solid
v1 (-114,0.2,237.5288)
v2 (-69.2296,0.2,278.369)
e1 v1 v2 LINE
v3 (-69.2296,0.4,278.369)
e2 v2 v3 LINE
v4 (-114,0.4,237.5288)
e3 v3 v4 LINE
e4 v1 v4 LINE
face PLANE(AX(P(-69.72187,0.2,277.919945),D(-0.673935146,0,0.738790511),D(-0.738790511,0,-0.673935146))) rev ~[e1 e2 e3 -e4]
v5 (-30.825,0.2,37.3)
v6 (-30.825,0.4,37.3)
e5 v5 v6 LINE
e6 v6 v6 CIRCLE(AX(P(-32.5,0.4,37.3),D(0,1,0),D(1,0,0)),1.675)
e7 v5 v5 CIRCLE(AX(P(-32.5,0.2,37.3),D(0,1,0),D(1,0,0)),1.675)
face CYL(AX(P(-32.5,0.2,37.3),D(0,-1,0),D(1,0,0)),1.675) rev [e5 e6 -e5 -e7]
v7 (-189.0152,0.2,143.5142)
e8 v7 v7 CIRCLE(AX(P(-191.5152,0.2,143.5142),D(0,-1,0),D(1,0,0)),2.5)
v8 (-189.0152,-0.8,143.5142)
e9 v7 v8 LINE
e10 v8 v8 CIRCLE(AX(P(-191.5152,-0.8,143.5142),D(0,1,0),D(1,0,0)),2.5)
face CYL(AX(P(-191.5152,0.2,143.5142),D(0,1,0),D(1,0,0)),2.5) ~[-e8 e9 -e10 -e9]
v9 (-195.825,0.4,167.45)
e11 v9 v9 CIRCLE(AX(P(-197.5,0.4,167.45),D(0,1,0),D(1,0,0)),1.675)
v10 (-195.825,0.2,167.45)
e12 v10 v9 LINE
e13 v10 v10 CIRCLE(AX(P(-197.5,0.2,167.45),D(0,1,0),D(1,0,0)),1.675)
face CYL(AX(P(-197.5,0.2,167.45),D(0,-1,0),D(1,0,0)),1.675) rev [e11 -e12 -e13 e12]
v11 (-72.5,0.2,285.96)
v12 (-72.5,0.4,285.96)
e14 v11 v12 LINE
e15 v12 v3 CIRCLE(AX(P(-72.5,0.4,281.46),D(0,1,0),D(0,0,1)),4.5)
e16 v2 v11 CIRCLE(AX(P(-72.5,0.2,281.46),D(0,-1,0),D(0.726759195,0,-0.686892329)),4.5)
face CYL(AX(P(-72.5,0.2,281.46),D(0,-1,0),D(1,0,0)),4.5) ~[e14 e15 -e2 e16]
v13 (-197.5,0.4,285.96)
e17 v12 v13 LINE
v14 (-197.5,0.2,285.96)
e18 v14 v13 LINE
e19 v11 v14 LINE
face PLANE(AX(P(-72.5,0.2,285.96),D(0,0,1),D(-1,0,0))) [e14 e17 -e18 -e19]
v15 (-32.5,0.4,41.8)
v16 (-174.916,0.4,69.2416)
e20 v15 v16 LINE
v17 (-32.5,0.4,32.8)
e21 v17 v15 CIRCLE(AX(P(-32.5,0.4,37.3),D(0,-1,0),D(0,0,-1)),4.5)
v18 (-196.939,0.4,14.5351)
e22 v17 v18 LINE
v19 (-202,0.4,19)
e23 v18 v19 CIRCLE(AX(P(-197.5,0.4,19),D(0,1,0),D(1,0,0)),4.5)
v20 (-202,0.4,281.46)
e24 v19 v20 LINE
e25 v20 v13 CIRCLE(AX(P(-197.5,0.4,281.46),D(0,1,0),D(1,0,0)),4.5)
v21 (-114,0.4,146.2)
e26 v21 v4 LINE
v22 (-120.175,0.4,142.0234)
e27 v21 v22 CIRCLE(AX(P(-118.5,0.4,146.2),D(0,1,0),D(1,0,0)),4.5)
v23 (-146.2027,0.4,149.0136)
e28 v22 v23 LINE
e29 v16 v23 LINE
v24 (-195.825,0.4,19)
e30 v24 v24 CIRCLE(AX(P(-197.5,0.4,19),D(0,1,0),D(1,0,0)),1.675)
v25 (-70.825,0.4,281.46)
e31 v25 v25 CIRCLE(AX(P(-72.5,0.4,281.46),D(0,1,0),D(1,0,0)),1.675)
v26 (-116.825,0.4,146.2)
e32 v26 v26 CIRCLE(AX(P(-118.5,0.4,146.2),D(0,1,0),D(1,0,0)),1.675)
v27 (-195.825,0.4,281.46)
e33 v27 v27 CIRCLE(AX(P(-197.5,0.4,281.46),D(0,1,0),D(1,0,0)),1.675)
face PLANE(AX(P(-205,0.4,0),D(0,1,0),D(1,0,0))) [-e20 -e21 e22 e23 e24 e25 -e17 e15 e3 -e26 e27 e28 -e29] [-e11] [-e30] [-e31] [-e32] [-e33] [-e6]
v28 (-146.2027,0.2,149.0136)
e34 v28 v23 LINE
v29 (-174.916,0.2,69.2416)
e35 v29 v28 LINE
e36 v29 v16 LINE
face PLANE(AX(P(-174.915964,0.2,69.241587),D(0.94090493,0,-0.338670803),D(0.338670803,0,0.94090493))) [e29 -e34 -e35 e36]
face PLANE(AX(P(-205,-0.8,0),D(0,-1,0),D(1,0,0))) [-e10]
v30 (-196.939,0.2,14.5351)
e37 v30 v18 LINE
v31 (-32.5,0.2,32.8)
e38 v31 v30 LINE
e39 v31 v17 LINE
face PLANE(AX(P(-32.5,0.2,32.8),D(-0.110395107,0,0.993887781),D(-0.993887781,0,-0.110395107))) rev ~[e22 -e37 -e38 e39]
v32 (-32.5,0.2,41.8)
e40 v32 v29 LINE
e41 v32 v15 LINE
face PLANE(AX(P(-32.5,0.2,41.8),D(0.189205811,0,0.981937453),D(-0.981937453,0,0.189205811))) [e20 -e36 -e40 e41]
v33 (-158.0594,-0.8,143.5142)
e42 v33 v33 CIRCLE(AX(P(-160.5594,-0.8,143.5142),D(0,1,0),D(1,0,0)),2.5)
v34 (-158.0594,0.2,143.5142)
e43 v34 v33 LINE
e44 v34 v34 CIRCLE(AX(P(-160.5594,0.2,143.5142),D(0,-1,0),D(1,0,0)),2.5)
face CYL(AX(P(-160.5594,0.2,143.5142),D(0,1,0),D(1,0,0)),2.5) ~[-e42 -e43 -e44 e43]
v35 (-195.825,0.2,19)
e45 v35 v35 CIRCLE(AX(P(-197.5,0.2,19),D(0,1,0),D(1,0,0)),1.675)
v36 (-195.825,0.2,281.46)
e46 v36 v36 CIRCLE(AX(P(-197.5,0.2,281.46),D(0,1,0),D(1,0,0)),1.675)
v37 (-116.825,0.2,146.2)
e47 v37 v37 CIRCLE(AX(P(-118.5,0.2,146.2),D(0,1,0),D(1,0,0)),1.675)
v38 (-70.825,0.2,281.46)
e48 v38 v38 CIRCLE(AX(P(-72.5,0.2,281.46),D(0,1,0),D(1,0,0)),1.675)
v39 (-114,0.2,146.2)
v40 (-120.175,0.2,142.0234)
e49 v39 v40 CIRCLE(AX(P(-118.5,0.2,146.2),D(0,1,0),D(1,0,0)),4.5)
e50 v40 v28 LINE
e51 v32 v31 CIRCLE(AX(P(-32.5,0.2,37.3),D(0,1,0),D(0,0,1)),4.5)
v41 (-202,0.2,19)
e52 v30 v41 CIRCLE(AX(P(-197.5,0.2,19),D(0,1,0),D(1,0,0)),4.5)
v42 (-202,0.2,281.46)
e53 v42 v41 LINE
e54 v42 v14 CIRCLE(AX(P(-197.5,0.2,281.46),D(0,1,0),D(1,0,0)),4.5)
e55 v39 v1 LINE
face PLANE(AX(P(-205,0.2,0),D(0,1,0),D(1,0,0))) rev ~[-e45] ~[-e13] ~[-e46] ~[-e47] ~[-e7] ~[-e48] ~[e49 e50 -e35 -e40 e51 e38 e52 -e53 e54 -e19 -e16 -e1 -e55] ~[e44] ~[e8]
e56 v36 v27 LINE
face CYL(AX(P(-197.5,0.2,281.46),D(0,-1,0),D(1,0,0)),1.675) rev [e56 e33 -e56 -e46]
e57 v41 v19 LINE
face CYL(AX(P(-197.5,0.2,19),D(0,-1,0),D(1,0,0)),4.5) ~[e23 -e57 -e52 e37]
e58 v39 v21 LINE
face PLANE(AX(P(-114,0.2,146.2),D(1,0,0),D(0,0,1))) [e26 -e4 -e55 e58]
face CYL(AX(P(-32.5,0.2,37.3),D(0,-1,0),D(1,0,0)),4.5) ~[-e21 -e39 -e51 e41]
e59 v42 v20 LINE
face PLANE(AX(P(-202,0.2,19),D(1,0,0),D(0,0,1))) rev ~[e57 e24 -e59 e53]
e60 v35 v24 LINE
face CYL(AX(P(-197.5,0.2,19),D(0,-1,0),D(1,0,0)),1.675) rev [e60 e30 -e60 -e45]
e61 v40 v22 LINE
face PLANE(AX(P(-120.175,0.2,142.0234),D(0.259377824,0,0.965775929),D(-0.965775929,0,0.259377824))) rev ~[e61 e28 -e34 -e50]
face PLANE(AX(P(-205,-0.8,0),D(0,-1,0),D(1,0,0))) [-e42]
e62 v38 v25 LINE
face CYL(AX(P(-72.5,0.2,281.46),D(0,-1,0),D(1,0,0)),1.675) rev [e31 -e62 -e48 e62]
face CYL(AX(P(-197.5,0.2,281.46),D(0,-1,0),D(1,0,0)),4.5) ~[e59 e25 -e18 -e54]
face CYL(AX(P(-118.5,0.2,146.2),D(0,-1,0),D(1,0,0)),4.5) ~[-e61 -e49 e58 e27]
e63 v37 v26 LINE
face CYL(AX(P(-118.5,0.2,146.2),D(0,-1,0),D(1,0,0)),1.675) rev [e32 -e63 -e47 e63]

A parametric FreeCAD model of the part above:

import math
import FreeCAD as App
import Part
import Sketcher

V = App.Vector

doc = App.newDocument("Part")
params = doc.addObject("Spreadsheet::Sheet", "Params")
for row, (alias, value) in enumerate([
    ("sketch1_radius", "4.5 mm"),
    ("sketch1_diameter", "3.35 mm"),
    ("sketch1_width", "125 mm"),
    ("sketch1_height", "262.46 mm"),
    ("sketch1_length", "26.95 mm"),
    ("pad1_length", "0.2 mm"),
    ("sketch2_diameter", "5 mm"),
    ("pad2_length", "1 mm"),
], start=1):
    params.set(f"A{row}", alias)
    params.set(f"B{row}", "=" + value)
    params.setAlias(f"B{row}", alias)

body = doc.addObject("PartDesign::Body", "Body")

# Sketch on XZ plane
sketch1 = body.newObject("Sketcher::SketchObject", "Sketch")
sketch1.AttachmentSupport = (doc.getObject("XZ_Plane"), [""])
sketch1.MapMode = "FlatFace"
sketch1.AttachmentOffset = App.Placement(V(0, 0, -0.2), App.Rotation())
sketch1.addGeometry(Part.ArcOfCircle(Part.Circle(V(-32.5, 37.3, 0), V(0, 0, 1), 4.5), math.radians(-90), math.radians(90)), False)
sketch1.addGeometry(Part.LineSegment(V(-32.5, 32.8, 0), V(-196.9, 14.5, 0)), False)
sketch1.addGeometry(Part.ArcOfCircle(Part.Circle(V(-197.5, 19, 0), V(0, 0, 1), 4.5), math.radians(180), math.radians(277)), False)
sketch1.addGeometry(Part.LineSegment(V(-202, 19, 0), V(-202, 281.5, 0)), False)
sketch1.addGeometry(Part.ArcOfCircle(Part.Circle(V(-197.5, 281.5, 0), V(0, 0, 1), 4.5), math.radians(90), math.radians(180)), False)
sketch1.addGeometry(Part.LineSegment(V(-197.5, 286, 0), V(-72.5, 286, 0)), False)
sketch1.addGeometry(Part.ArcOfCircle(Part.Circle(V(-72.5, 281.5, 0), V(0, 0, 1), 4.5), math.radians(-43), math.radians(90)), False)
sketch1.addGeometry(Part.LineSegment(V(-69.2, 278.4, 0), V(-114, 237.5, 0)), False)
sketch1.addGeometry(Part.LineSegment(V(-114, 237.5, 0), V(-114, 146.2, 0)), False)
sketch1.addGeometry(Part.ArcOfCircle(Part.Circle(V(-118.5, 146.2, 0), V(0, 0, 1), 4.5), math.radians(-112), math.radians(0)), False)
sketch1.addGeometry(Part.LineSegment(V(-120.2, 142, 0), V(-146.2, 149, 0)), False)
sketch1.addGeometry(Part.LineSegment(V(-146.2, 149, 0), V(-174.9, 69.2, 0)), False)
sketch1.addGeometry(Part.LineSegment(V(-174.9, 69.2, 0), V(-32.5, 41.8, 0)), False)
sketch1.addGeometry(Part.Circle(V(-32.5, 37.3, 0), V(0, 0, 1), 1.7), False)
sketch1.addGeometry(Part.Circle(V(-197.5, 19, 0), V(0, 0, 1), 1.7), False)
sketch1.addGeometry(Part.Circle(V(-197.5, 167.4, 0), V(0, 0, 1), 1.7), False)
sketch1.addGeometry(Part.Circle(V(-118.5, 146.2, 0), V(0, 0, 1), 1.7), False)
sketch1.addGeometry(Part.Circle(V(-197.5, 281.5, 0), V(0, 0, 1), 1.7), False)
sketch1.addGeometry(Part.Circle(V(-72.5, 281.5, 0), V(0, 0, 1), 1.7), False)
sketch1.addConstraint(Sketcher.Constraint("Coincident", 0, 1, 1, 1))
sketch1.addConstraint(Sketcher.Constraint("Coincident", 1, 2, 2, 2))
sketch1.addConstraint(Sketcher.Constraint("Tangent", 2, 1, 3, 1))
sketch1.addConstraint(Sketcher.Constraint("Tangent", 3, 2, 4, 2))
sketch1.addConstraint(Sketcher.Constraint("Tangent", 4, 1, 5, 1))
sketch1.addConstraint(Sketcher.Constraint("Tangent", 5, 2, 6, 2))
sketch1.addConstraint(Sketcher.Constraint("Coincident", 6, 1, 7, 1))
sketch1.addConstraint(Sketcher.Constraint("Coincident", 7, 2, 8, 1))
sketch1.addConstraint(Sketcher.Constraint("Tangent", 8, 2, 9, 2))
sketch1.addConstraint(Sketcher.Constraint("Coincident", 9, 1, 10, 1))
sketch1.addConstraint(Sketcher.Constraint("Coincident", 10, 2, 11, 1))
sketch1.addConstraint(Sketcher.Constraint("Coincident", 11, 2, 12, 1))
sketch1.addConstraint(Sketcher.Constraint("Coincident", 12, 2, 0, 2))
sketch1.addConstraint(Sketcher.Constraint("Vertical", 3))
sketch1.addConstraint(Sketcher.Constraint("Horizontal", 5))
sketch1.addConstraint(Sketcher.Constraint("Vertical", 8))
sketch1.addConstraint(Sketcher.Constraint("Coincident", 13, 3, 0, 3))
sketch1.addConstraint(Sketcher.Constraint("Coincident", 14, 3, 2, 3))
sketch1.addConstraint(Sketcher.Constraint("Coincident", 16, 3, 9, 3))
sketch1.addConstraint(Sketcher.Constraint("Coincident", 17, 3, 4, 3))
sketch1.addConstraint(Sketcher.Constraint("Coincident", 18, 3, 6, 3))
sketch1.addConstraint(Sketcher.Constraint("Equal", 0, 2))
sketch1.addConstraint(Sketcher.Constraint("Equal", 2, 4))
sketch1.addConstraint(Sketcher.Constraint("Equal", 4, 6))
sketch1.addConstraint(Sketcher.Constraint("Equal", 6, 9))
sketch1.addConstraint(Sketcher.Constraint("Equal", 13, 14))
sketch1.addConstraint(Sketcher.Constraint("Equal", 14, 15))
sketch1.addConstraint(Sketcher.Constraint("Equal", 15, 16))
sketch1.addConstraint(Sketcher.Constraint("Equal", 16, 17))
sketch1.addConstraint(Sketcher.Constraint("Equal", 17, 18))
sketch1.addConstraint(Sketcher.Constraint("Vertical", 14, 3, 15, 3))
sketch1.addConstraint(Sketcher.Constraint("Vertical", 13, 3, 0, 1))
sketch1.addConstraint(Sketcher.Constraint("Vertical", 0, 1, 12, 2))
sketch1.addConstraint(Sketcher.Constraint("Radius", 0, 4.5))
sketch1.addConstraint(Sketcher.Constraint("Diameter", 13, 3.35))
sketch1.addConstraint(Sketcher.Constraint("DistanceX", 5, 1, 5, 2, 125.0))
sketch1.addConstraint(Sketcher.Constraint("DistanceY", -1, 1, 2, 3, 19.0))
sketch1.addConstraint(Sketcher.Constraint("DistanceX", 2, 1, -1, 1, 202.0))
sketch1.addConstraint(Sketcher.Constraint("DistanceX", 7, 2, -1, 1, 114.0))
sketch1.addConstraint(Sketcher.Constraint("DistanceX", 2, 3, 0, 3, 165.0))
sketch1.addConstraint(Sketcher.Constraint("DistanceY", 3, 1, 3, 2, 262.46))
sketch1.addConstraint(Sketcher.Constraint("DistanceY", -1, 1, 0, 3, 37.3))
sketch1.addConstraint(Sketcher.Constraint("DistanceY", -1, 1, 9, 3, 146.2))
sketch1.addConstraint(Sketcher.Constraint("Distance", 10, 26.95))
sketch1.addConstraint(Sketcher.Constraint("DistanceY", -1, 1, 15, 3, 167.45))
sketch1.addConstraint(Sketcher.Constraint("DistanceY", 8, 2, 8, 1, 91.3288))
sketch1.addConstraint(Sketcher.Constraint("DistanceX", 1, 2, -1, 1, 196.939))
sketch1.addConstraint(Sketcher.Constraint("DistanceY", -1, 1, 6, 1, 278.369))
sketch1.addConstraint(Sketcher.Constraint("DistanceX", 9, 1, -1, 1, 120.175))
sketch1.addConstraint(Sketcher.Constraint("DistanceX", 11, 2, -1, 1, 174.916))
sketch1.addConstraint(Sketcher.Constraint("DistanceY", 11, 2, 10, 2, 79.772))
sketch1.addConstraint(Sketcher.Constraint("Distance", 11, 84.7822))
sketch1.setExpression("Constraints[33]", "Params.sketch1_radius")
sketch1.setExpression("Constraints[34]", "Params.sketch1_diameter")
sketch1.setExpression("Constraints[35]", "Params.sketch1_width")
sketch1.setExpression("Constraints[40]", "Params.sketch1_height")
sketch1.setExpression("Constraints[43]", "Params.sketch1_length")
pad1 = body.newObject("PartDesign::Pad", "Pad")
pad1.Profile = sketch1
pad1.setExpression("Length", "Params.pad1_length")
pad1.Reversed = True

# Sketch on XZ plane
sketch2 = body.newObject("Sketcher::SketchObject", "Sketch001")
sketch2.AttachmentSupport = (doc.getObject("XZ_Plane"), [""])
sketch2.MapMode = "FlatFace"
sketch2.AttachmentOffset = App.Placement(V(0, 0, -0.2), App.Rotation())
sketch2.addGeometry(Part.Circle(V(-191.5, 143.5, 0), V(0, 0, 1), 2.5), False)
sketch2.addGeometry(Part.Circle(V(-160.6, 143.5, 0), V(0, 0, 1), 2.5), False)
sketch2.addConstraint(Sketcher.Constraint("Equal", 0, 1))
sketch2.addConstraint(Sketcher.Constraint("Horizontal", 0, 3, 1, 3))
sketch2.addConstraint(Sketcher.Constraint("Diameter", 0, 5.0))
sketch2.addConstraint(Sketcher.Constraint("DistanceX", 0, 3, -1, 1, 191.5152))
sketch2.addConstraint(Sketcher.Constraint("DistanceY", -1, 1, 0, 3, 143.5142))
sketch2.addConstraint(Sketcher.Constraint("DistanceX", 1, 3, -1, 1, 160.5594))
sketch2.setExpression("Constraints[2]", "Params.sketch2_diameter")
pad2 = body.newObject("PartDesign::Pad", "Pad001")
pad2.Profile = sketch2
pad2.setExpression("Length", "Params.pad2_length")

doc.recompute()
